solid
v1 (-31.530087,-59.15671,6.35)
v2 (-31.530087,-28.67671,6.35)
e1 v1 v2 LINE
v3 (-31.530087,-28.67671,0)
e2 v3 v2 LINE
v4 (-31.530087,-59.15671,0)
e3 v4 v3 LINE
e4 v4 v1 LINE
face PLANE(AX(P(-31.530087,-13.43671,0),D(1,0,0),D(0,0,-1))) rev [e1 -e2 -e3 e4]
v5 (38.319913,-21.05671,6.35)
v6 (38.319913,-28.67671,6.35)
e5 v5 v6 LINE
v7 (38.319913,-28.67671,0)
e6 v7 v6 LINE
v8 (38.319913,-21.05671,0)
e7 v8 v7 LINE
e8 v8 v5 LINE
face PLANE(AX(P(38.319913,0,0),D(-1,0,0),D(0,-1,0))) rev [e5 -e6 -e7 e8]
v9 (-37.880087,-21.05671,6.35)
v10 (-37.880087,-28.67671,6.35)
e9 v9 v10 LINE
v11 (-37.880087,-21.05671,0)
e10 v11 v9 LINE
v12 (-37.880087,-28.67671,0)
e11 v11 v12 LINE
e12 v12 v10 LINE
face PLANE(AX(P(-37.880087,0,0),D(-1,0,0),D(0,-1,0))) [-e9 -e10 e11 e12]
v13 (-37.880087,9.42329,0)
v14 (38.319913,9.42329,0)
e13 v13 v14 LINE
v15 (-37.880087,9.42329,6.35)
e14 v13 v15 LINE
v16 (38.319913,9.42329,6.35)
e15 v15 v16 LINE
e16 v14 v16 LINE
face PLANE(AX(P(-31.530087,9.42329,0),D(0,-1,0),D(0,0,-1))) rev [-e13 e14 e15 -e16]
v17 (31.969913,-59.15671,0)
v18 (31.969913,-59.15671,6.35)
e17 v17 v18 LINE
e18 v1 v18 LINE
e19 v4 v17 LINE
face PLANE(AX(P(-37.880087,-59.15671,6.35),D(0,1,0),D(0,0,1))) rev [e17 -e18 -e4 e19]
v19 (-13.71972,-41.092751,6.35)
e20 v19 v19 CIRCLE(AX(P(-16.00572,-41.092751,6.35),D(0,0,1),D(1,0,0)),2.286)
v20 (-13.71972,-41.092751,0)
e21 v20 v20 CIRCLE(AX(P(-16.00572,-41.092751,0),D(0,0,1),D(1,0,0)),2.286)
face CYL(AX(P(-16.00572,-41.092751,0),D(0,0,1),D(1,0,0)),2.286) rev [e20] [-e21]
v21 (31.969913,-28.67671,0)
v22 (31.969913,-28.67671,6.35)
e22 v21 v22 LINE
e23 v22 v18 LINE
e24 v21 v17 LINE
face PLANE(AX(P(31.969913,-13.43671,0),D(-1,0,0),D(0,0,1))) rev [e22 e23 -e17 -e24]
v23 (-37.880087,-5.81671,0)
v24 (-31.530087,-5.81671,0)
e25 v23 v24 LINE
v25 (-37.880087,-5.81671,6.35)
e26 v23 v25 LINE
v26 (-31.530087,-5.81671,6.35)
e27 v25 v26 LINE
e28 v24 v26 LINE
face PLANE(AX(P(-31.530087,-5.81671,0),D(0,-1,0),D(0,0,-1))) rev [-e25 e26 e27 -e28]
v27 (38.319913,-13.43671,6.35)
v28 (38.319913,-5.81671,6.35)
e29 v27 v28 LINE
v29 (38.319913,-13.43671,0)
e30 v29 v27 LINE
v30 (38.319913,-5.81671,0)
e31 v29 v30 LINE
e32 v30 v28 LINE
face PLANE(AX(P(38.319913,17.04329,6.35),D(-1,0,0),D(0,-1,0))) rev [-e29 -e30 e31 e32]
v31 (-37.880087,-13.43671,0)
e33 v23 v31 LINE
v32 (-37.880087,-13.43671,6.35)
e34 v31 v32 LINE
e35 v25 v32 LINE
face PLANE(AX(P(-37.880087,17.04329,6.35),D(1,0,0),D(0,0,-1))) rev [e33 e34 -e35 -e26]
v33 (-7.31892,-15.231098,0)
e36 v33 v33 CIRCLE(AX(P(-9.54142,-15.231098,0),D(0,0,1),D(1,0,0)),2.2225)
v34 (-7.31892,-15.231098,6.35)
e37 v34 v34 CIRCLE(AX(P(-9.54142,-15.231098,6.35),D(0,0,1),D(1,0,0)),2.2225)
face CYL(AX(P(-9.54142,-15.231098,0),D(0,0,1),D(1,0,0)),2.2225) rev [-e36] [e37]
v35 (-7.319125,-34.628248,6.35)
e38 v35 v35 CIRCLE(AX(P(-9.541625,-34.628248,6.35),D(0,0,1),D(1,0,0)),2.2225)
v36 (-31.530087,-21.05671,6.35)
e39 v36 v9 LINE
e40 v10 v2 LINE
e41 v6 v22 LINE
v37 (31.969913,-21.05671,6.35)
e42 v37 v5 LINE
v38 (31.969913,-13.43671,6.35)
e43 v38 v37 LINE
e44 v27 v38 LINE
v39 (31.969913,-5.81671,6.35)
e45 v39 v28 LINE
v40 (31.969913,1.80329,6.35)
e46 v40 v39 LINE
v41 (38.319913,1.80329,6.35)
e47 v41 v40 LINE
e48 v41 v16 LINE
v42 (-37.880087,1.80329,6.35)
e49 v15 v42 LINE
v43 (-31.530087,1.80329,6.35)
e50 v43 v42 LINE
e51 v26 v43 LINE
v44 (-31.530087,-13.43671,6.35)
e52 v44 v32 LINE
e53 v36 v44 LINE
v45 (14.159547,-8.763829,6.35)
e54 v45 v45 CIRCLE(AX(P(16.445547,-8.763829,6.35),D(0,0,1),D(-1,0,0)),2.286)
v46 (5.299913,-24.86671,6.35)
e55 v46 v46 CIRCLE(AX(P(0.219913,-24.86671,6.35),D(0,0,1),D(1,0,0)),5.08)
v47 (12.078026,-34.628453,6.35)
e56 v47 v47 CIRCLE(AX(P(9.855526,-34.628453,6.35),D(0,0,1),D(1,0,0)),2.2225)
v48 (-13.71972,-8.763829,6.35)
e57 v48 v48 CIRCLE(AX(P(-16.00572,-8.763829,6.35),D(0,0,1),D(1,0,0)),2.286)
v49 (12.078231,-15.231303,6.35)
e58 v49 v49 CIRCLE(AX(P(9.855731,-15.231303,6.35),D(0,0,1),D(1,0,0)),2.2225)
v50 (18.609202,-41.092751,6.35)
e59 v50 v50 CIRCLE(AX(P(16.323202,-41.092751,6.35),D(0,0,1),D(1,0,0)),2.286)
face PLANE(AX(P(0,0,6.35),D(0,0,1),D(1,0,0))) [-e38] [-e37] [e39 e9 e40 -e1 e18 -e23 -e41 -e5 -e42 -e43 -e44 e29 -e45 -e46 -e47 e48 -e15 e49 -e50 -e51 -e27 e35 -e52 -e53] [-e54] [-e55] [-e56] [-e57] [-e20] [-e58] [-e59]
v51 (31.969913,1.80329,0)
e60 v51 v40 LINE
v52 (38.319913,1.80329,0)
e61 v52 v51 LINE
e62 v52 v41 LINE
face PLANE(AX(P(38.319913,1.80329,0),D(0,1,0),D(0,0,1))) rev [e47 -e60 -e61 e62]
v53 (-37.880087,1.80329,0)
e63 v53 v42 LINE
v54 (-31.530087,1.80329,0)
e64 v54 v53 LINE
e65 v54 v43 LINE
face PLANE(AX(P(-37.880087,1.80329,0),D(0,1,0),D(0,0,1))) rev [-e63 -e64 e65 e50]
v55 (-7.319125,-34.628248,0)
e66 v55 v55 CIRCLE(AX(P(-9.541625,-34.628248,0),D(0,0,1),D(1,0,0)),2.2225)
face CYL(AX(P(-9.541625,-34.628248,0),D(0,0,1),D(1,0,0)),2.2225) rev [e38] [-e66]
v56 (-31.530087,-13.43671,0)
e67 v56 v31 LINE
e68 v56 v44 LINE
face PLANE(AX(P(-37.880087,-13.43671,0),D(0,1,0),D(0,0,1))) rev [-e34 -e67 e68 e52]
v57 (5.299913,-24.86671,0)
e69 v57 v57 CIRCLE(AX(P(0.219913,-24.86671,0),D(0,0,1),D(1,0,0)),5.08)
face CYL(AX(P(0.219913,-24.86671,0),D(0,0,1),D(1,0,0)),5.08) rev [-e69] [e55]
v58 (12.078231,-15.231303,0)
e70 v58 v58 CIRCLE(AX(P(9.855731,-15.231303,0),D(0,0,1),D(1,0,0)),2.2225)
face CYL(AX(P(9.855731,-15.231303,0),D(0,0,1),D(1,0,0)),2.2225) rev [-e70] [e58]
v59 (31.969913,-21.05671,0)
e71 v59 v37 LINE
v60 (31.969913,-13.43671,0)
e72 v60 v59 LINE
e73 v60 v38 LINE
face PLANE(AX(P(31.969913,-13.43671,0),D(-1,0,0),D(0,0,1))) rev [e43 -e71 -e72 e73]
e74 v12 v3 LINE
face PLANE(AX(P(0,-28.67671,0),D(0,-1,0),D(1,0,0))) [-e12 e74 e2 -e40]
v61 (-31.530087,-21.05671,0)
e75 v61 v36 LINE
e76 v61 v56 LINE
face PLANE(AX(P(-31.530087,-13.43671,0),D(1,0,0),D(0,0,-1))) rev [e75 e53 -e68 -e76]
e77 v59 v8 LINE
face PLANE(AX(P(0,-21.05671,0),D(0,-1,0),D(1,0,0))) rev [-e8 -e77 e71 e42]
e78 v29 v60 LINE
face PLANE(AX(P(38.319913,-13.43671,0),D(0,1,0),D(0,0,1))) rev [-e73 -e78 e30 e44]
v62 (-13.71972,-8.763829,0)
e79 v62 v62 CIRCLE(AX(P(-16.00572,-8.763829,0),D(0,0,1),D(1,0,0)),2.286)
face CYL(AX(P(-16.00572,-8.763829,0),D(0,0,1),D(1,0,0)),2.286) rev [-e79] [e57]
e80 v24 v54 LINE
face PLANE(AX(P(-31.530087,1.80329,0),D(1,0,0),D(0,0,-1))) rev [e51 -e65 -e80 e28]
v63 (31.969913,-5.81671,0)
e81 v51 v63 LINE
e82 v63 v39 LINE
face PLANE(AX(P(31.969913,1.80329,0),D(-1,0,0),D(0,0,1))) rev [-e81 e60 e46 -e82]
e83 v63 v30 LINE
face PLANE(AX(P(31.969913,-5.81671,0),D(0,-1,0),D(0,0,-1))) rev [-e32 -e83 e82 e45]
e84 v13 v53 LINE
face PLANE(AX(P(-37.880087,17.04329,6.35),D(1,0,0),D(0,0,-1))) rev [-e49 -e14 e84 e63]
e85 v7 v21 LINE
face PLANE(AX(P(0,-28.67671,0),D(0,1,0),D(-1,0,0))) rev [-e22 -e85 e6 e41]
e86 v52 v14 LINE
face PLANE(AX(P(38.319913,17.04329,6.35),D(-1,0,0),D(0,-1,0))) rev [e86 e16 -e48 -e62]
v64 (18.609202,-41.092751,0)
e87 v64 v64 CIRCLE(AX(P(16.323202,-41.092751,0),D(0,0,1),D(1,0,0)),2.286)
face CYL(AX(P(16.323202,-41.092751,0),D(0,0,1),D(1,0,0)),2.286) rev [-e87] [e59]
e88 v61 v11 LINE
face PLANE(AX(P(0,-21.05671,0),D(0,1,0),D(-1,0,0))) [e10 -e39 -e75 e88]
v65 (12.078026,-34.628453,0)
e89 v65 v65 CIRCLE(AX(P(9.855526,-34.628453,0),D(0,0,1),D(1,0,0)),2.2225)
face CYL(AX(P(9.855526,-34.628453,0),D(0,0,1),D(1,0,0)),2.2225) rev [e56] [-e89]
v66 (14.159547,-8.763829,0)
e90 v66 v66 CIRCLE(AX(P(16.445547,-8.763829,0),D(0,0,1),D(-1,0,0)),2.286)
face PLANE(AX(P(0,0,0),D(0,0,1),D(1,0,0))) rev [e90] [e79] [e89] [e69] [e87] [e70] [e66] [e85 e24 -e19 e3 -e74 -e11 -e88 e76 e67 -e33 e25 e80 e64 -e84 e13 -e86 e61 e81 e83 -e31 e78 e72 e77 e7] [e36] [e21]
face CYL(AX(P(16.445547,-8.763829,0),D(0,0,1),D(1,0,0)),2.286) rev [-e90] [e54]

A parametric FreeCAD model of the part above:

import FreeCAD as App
import Part
import Sketcher

V = App.Vector
Q = App.Units.Quantity


def add_polygon(sketch, points):
    """Adds a closed chain of lines whose ends are joined by coincident constraints."""
    first, n = sketch.GeometryCount, len(points)
    for a, b in zip(points, points[1:] + points[:1]):
        sketch.addGeometry(Part.LineSegment(App.Vector(*a, 0), App.Vector(*b, 0)), False)
    for i in range(n):
        sketch.addConstraint(Sketcher.Constraint("Coincident", first + i, 2, first + (i + 1) % n, 1))

doc = App.newDocument("Part")
body = doc.addObject("PartDesign::Body", "Body")

# Sketch on XY plane
sketch1 = body.newObject("Sketcher::SketchObject", "Sketch")
sketch1.AttachmentSupport = (doc.getObject("XY_Plane"), [""])
sketch1.MapMode = "FlatFace"
add_polygon(sketch1, [(-37.880087, 17.04329), (-37.880087, -59.15671), (38.319913, -59.15671), (38.319913, 17.04329)])  # lines 0-3
sketch1.addConstraint([
    Sketcher.Constraint("Vertical", 0),
    Sketcher.Constraint("Horizontal", 1),
    Sketcher.Constraint("Vertical", 2),
    Sketcher.Constraint("Horizontal", 3),
    Sketcher.Constraint("Equal", 3, 0),
    Sketcher.Constraint("DistanceX", 1, 1, 1, 2, Q("3 in")),
    Sketcher.Constraint("DistanceY", 0, 2, -1, 1, 59.15671),
    Sketcher.Constraint("DistanceX", 0, 2, -1, 1, 37.880087),
])
pad1 = body.newObject("PartDesign::Pad", "Pad")
pad1.Profile = sketch1
pad1.Length = Q("0.25 in")

# Sketch on XY plane
sketch2 = body.newObject("Sketcher::SketchObject", "Sketch001")
sketch2.AttachmentSupport = (doc.getObject("XY_Plane"), [""])
sketch2.MapMode = "FlatFace"
sketch2.AttachmentOffset = App.Placement(V(0, 0, 0.25 * 25.4), App.Rotation())
add_polygon(sketch2, [(-31.530087, 17.04329), (-46.72585, 17.04329), (-46.72585, -21.05671), (-31.530087, -21.05671), (-31.530087, -13.43671), (-37.880087, -13.43671), (-37.880087, -5.81671), (-31.530087, -5.81671), (-31.530087, 1.80329), (-37.880087, 1.80329), (-37.880087, 9.42329), (-31.530087, 9.42329)])  # lines 0-11
add_polygon(sketch2, [(47.165677, -21.05671), (47.165677, 17.04329), (31.969913, 17.04329), (31.969913, 9.42329), (38.319913, 9.42329), (38.319913, 1.80329), (31.969913, 1.80329), (31.969913, -5.81671), (38.319913, -5.81671), (38.319913, -13.43671), (31.969913, -13.43671), (31.969913, -21.05671)])  # lines 12-23
sketch2.addConstraint([
    Sketcher.Constraint("Horizontal", 0),
    Sketcher.Constraint("Vertical", 1),
    Sketcher.Constraint("Horizontal", 2),
    Sketcher.Constraint("Vertical", 3),
    Sketcher.Constraint("Horizontal", 4),
    Sketcher.Constraint("Vertical", 5),
    Sketcher.Constraint("Horizontal", 6),
    Sketcher.Constraint("Vertical", 7),
    Sketcher.Constraint("Horizontal", 8),
    Sketcher.Constraint("Vertical", 9),
    Sketcher.Constraint("Horizontal", 10),
    Sketcher.Constraint("Vertical", 11),
    Sketcher.Constraint("Vertical", 12),
    Sketcher.Constraint("Horizontal", 13),
    Sketcher.Constraint("Vertical", 14),
    Sketcher.Constraint("Horizontal", 15),
    Sketcher.Constraint("Vertical", 16),
    Sketcher.Constraint("Horizontal", 17),
    Sketcher.Constraint("Vertical", 18),
    Sketcher.Constraint("Horizontal", 19),
    Sketcher.Constraint("Vertical", 20),
    Sketcher.Constraint("Horizontal", 21),
    Sketcher.Constraint("Vertical", 22),
    Sketcher.Constraint("Horizontal", 23),
    Sketcher.Constraint("Horizontal", 11, 2, 12, 2),
    Sketcher.Constraint("Horizontal", 10, 2, 14, 2),
    Sketcher.Constraint("Horizontal", 8, 2, 16, 2),
    Sketcher.Constraint("Horizontal", 6, 2, 18, 2),
    Sketcher.Constraint("Horizontal", 4, 2, 20, 2),
    Sketcher.Constraint("Horizontal", 2, 2, 22, 2),
    Sketcher.Constraint("Vertical", 3, 2, 6, 2),
    Sketcher.Constraint("Vertical", 5, 2, 8, 2),
    Sketcher.Constraint("Vertical", 7, 2, 10, 2),
    Sketcher.Constraint("Vertical", 14, 2, 17, 2),
    Sketcher.Constraint("Vertical", 16, 2, 19, 2),
    Sketcher.Constraint("Vertical", 18, 2, 21, 2),
    Sketcher.Constraint("Equal", 2, 13),
    Sketcher.Constraint("Equal", 10, 15),
    Sketcher.Constraint("Equal", 3, 5),
    Sketcher.Constraint("Equal", 5, 7),
    Sketcher.Constraint("Equal", 7, 9),
    Sketcher.Constraint("Equal", 9, 11),
    Sketcher.Constraint("DistanceY", 1, 2, 1, 1, Q("1.5 in")),
    Sketcher.Constraint("DistanceX", 4, 2, 4, 1, Q("0.25 in")),
    Sketcher.Constraint("DistanceX", 11, 2, 13, 2, Q("2.5 in")),
    Sketcher.Constraint("DistanceX", 0, 2, 0, 1, 15.195763),
    Sketcher.Constraint("DistanceX", 0, 2, -1, 1, 46.72585),
    Sketcher.Constraint("DistanceY", -1, 1, 0, 2, 17.04329),
])
pocket1 = body.newObject("PartDesign::Pocket", "Pocket")
pocket1.Profile = sketch2
pocket1.Length = Q("0.25 in")

# Sketch on XY plane
sketch3 = body.newObject("Sketcher::SketchObject", "Sketch002")
sketch3.AttachmentSupport = (doc.getObject("XY_Plane"), [""])
sketch3.MapMode = "FlatFace"
sketch3.AttachmentOffset = App.Placement(V(0, 0, 0.25 * 25.4), App.Rotation())
add_polygon(sketch3, [(-37.880087, -21.05671), (-37.880087, -59.15671), (-31.530087, -59.15671), (-31.530087, -21.05671)])  # lines 0-3
add_polygon(sketch3, [(31.969913, -21.05671), (31.969913, -59.15671), (38.319913, -59.15671), (38.319913, -21.05671)])  # lines 4-7
sketch3.addConstraint([
    Sketcher.Constraint("Vertical", 0),
    Sketcher.Constraint("Horizontal", 1),
    Sketcher.Constraint("Vertical", 2),
    Sketcher.Constraint("Horizontal", 3),
    Sketcher.Constraint("Vertical", 4),
    Sketcher.Constraint("Horizontal", 5),
    Sketcher.Constraint("Vertical", 6),
    Sketcher.Constraint("Horizontal", 7),
    Sketcher.Constraint("Horizontal", 1, 2, 4, 2),
    Sketcher.Constraint("Horizontal", 3, 2, 6, 2),
    Sketcher.Constraint("Equal", 3, 5),
    Sketcher.Constraint("DistanceY", 0, 2, 0, 1, Q("1.5 in")),
    Sketcher.Constraint("DistanceX", 0, 2, 5, 2, Q("3 in")),
    Sketcher.Constraint("DistanceX", 1, 1, 1, 2, Q("0.25 in")),
    Sketcher.Constraint("DistanceY", 0, 2, -1, 1, 59.15671),
    Sketcher.Constraint("DistanceX", 0, 2, -1, 1, 37.880087),
])
pocket2 = body.newObject("PartDesign::Pocket", "Pocket001")
pocket2.Profile = sketch3
pocket2.Length = Q("0.25 in")

# Sketch on XY plane
sketch4 = body.newObject("Sketcher::SketchObject", "Sketch003")
sketch4.AttachmentSupport = (doc.getObject("XY_Plane"), [""])
sketch4.MapMode = "FlatFace"
sketch4.AttachmentOffset = App.Placement(V(0, 0, 0.25 * 25.4), App.Rotation())
add_polygon(sketch4, [(-37.880087, -21.05671), (-37.880087, -28.67671), (-31.530087, -28.67671), (-31.530087, -21.05671)])  # lines 0-3
add_polygon(sketch4, [(31.969913, -21.05671), (31.969913, -28.67671), (38.319913, -28.67671), (38.319913, -21.05671)])  # lines 4-7
sketch4.addConstraint([
    Sketcher.Constraint("Vertical", 0),
    Sketcher.Constraint("Horizontal", 1),
    Sketcher.Constraint("Vertical", 2),
    Sketcher.Constraint("Horizontal", 3),
    Sketcher.Constraint("Vertical", 4),
    Sketcher.Constraint("Horizontal", 5),
    Sketcher.Constraint("Vertical", 6),
    Sketcher.Constraint("Horizontal", 7),
    Sketcher.Constraint("Horizontal", 1, 2, 4, 2),
    Sketcher.Constraint("Horizontal", 3, 2, 6, 2),
    Sketcher.Constraint("Equal", 3, 5),
    Sketcher.Constraint("DistanceY", 0, 2, 0, 1, Q("0.3 in")),
    Sketcher.Constraint("DistanceX", 0, 2, 5, 2, Q("3 in")),
    Sketcher.Constraint("DistanceX", 1, 1, 1, 2, Q("0.25 in")),
    Sketcher.Constraint("DistanceY", 0, 2, -1, 1, 28.67671),
    Sketcher.Constraint("DistanceX", 0, 2, -1, 1, 37.880087),
])
pad2 = body.newObject("PartDesign::Pad", "Pad001")
pad2.Profile = sketch4
pad2.Length = Q("0.25 in")
pad2.Reversed = True

# Sketch on XZ plane
sketch5 = body.newObject("Sketcher::SketchObject", "Sketch004")
sketch5.AttachmentSupport = (doc.getObject("XZ_Plane"), [""])
sketch5.MapMode = "FlatFace"
sketch5.AttachmentOffset = App.Placement(V(0, 0, -17.04329), App.Rotation())
add_polygon(sketch5, [(-31.530087, 0), (-31.530087, 6.35), (31.969913, 6.35), (31.969913, 0)])  # lines 0-3
sketch5.addConstraint([
    Sketcher.Constraint("Vertical", 0),
    Sketcher.Constraint("Horizontal", 1),
    Sketcher.Constraint("Vertical", 2),
    Sketcher.Constraint("Horizontal", 3),
    Sketcher.Constraint("PointOnObject", 2, 2, -1),
    Sketcher.Constraint("DistanceX", 1, 1, 1, 2, Q("2.5 in")),
    Sketcher.Constraint("DistanceY", 0, 1, 0, 2, Q("0.25 in")),
    Sketcher.Constraint("DistanceX", 0, 2, -1, 1, 31.530087),
])
pocket3 = body.newObject("PartDesign::Pocket", "Pocket002")
pocket3.Profile = sketch5
pocket3.Length = Q("0.3 in")
pocket3.Reversed = True

# Sketch on XY plane
sketch6 = body.newObject("Sketcher::SketchObject", "Sketch005")
sketch6.AttachmentSupport = (doc.getObject("XY_Plane"), [""])
sketch6.MapMode = "FlatFace"
sketch6.AttachmentOffset = App.Placement(V(0, 0, 0.25 * 25.4), App.Rotation())
sketch6.addGeometry([
    Part.Circle(V(0.219913, -24.86671, 0), V(0, 0, 1), 5.08),  # 0
    Part.Circle(V(-9.541625, -34.628248, 0), V(0, 0, 1), 2.2225),  # 1
    Part.Circle(V(-16.00572, -8.763829, 0), V(0, 0, 1), 2.286),  # 2
    Part.Circle(V(-9.54142, -15.231098, 0), V(0, 0, 1), 2.2225),  # 3
    Part.Circle(V(9.855731, -15.231303, 0), V(0, 0, 1), 2.2225),  # 4
    Part.Circle(V(9.855526, -34.628453, 0), V(0, 0, 1), 2.2225),  # 5
    Part.Circle(V(16.445547, -8.763829, 0), V(0, 0, 1), 2.286),  # 6
    Part.Circle(V(16.323202, -41.092751, 0), V(0, 0, 1), 2.286),  # 7
    Part.Circle(V(-16.00572, -41.092751, 0), V(0, 0, 1), 2.286),  # 8
], False)
sketch6.addConstraint([
    Sketcher.Constraint("Equal", 1, 3),
    Sketcher.Constraint("Equal", 3, 4),
    Sketcher.Constraint("Equal", 4, 5),
    Sketcher.Constraint("Equal", 2, 6),
    Sketcher.Constraint("Equal", 6, 7),
    Sketcher.Constraint("Equal", 7, 8),
    Sketcher.Constraint("Horizontal", 2, 3, 6, 3),
    Sketcher.Constraint("Horizontal", 7, 3, 8, 3),
    Sketcher.Constraint("Vertical", 2, 3, 8, 3),
    Sketcher.Constraint("Diameter", 0, Q("0.4 in")),
    Sketcher.Constraint("Diameter", 2, Q("0.18 in")),
    Sketcher.Constraint("Diameter", 1, Q("0.175 in")),
    Sketcher.Constraint("DistanceX", 2, 3, 3, 3, Q("0.2545 in")),
    Sketcher.Constraint("DistanceY", 7, 3, 5, 3, Q("0.2544999 in")),
    Sketcher.Constraint("DistanceY", 0, 3, -1, 1, 24.86671),
    Sketcher.Constraint("DistanceY", 1, 3, -1, 1, 34.628248),
    Sketcher.Constraint("DistanceX", 2, 3, -1, 1, 16.00572),
    Sketcher.Constraint("DistanceY", 2, 3, -1, 1, 8.763829),
    Sketcher.Constraint("DistanceX", -1, 1, 4, 3, 9.855731),
    Sketcher.Constraint("DistanceY", 7, 3, -1, 1, 41.092751),
    Sketcher.Constraint("DistanceX", 1, 3, 0, 3, 9.761538),
    Sketcher.Constraint("DistanceY", 3, 3, 2, 3, 6.467268),
    Sketcher.Constraint("DistanceY", 5, 3, 4, 3, 19.397151),
    Sketcher.Constraint("DistanceX", 1, 3, 5, 3, 19.397151),
    Sketcher.Constraint("DistanceX", 5, 3, 6, 3, 6.590021),
    Sketcher.Constraint("DistanceX", 0, 3, 7, 3, 16.103289),
    Sketcher.Constraint("DistanceX", 4, 3, 7, 3, 6.467471),
])
pocket4 = body.newObject("PartDesign::Pocket", "Pocket003")
pocket4.Profile = sketch6
pocket4.Type = "ThroughAll"

doc.recompute()
